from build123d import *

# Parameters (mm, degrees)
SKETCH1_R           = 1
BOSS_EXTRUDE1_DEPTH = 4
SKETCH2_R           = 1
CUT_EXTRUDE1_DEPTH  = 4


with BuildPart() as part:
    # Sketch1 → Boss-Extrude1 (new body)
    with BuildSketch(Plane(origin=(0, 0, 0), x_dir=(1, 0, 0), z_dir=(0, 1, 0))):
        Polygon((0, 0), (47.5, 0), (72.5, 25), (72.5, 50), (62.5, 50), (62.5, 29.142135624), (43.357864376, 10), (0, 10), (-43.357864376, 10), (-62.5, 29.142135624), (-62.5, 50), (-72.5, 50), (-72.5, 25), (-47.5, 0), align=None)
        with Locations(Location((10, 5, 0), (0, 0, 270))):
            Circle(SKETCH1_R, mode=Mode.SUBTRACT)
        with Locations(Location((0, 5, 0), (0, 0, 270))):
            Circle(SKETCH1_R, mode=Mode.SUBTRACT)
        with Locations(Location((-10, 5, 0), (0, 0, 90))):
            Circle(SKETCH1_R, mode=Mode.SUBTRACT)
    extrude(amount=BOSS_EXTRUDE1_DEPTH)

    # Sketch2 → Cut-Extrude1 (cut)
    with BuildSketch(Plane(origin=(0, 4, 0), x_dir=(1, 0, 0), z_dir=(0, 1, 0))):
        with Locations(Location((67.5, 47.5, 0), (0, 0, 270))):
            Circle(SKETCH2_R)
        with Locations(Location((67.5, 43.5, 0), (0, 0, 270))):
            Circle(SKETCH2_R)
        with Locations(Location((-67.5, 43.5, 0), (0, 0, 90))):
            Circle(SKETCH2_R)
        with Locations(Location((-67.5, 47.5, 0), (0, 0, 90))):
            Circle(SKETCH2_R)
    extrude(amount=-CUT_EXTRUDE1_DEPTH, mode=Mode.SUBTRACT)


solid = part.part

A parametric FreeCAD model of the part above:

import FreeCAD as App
import Part
import Sketcher
from FreeCAD import Vector
Q = App.Units.Quantity


def add_polygon(sketch, points):
    """Adds a closed chain of lines whose ends are joined by coincident constraints."""
    first, n = sketch.GeometryCount, len(points)
    for a, b in zip(points, points[1:] + points[:1]):
        sketch.addGeometry(Part.LineSegment(App.Vector(*a, 0), App.Vector(*b, 0)), False)
    for i in range(n):
        sketch.addConstraint(Sketcher.Constraint("Coincident", first + i, 2, first + (i + 1) % n, 1))

doc = App.newDocument("Part")
body = doc.addObject("PartDesign::Body", "Body")

# Sketch on XZ plane
sketch1 = doc.addObject("Sketcher::SketchObject", "Sketch")
body.addObject(sketch1)
sketch1.AttachmentSupport = (doc.XZ_Plane, [""])
sketch1.MapMode = "FlatFace"
add_polygon(sketch1, [(47.5, 0), (72.5, -25), (72.5, -50), (62.5, -50), (62.5, -29.1), (43.4, -10), (-43.4, -10), (-62.5, -29.1), (-62.5, -50), (-72.5, -50), (-72.5, -25), (-47.5, 0)])  # lines 0-11
sketch1.addGeometry(Part.Circle(Vector(-10, -5, 0), Vector(0, 0, 1), 1), False)  # 12
sketch1.addGeometry(Part.Circle(Vector(0, -5, 0), Vector(0, 0, 1), 1), False)  # 13
sketch1.addGeometry(Part.Circle(Vector(10, -5, 0), Vector(0, 0, 1), 1), False)  # 14
sketch1.addConstraint([
    Sketcher.Constraint("Vertical", 1),
    Sketcher.Constraint("Horizontal", 2),
    Sketcher.Constraint("Vertical", 3),
    Sketcher.Constraint("Horizontal", 5),
    Sketcher.Constraint("Vertical", 7),
    Sketcher.Constraint("Horizontal", 8),
    Sketcher.Constraint("Vertical", 9),
    Sketcher.Constraint("Horizontal", 11),
    Sketcher.Constraint("Equal", 12, 13),
    Sketcher.Constraint("Equal", 13, 14),
    Sketcher.Constraint("Symmetric", 10, 2, 11, 2, -1, 1),
    Sketcher.Constraint("Symmetric", 12, 3, 14, 3, -2),
    Sketcher.Constraint("Symmetric", 3, 2, 6, 2, -2),
    Sketcher.Constraint("Symmetric", 1, 2, 8, 2, -2),
    Sketcher.Constraint("PointOnObject", 13, 3, -2),
    Sketcher.Constraint("Parallel", 0, 4),
    Sketcher.Constraint("Perpendicular", 4, 6),
    Sketcher.Constraint("Parallel", 6, 10),
    Sketcher.Constraint("Horizontal", 12, 3, 13, 3),
    Sketcher.Constraint("Horizontal", 0, 2, 9, 2),
    Sketcher.Constraint("Diameter", 12, Q("2 mm")),
    Sketcher.Constraint("DistanceX", 2, 2, 2, 1, Q("10 mm")),
    Sketcher.Constraint("DistanceX", 11, 1, 11, 2, Q("95 mm")),
    Sketcher.Constraint("DistanceY", 1, 2, 1, 1, Q("25 mm")),
    Sketcher.Constraint("DistanceX", 12, 3, -1, 1, Q("10 mm")),
    Sketcher.Constraint("DistanceY", 12, 3, -1, 1, Q("5 mm")),
    Sketcher.Constraint("DistanceY", 0, 2, -1, 1, Q("25 mm")),
    Sketcher.Constraint("DistanceY", 4, 2, -1, 1, Q("10 mm")),
    Sketcher.Constraint("DistanceX", 5, 2, 5, 1, Q("86.715729 mm")),
])
pad1 = doc.addObject("PartDesign::Pad", "Pad")
body.addObject(pad1)
pad1.Profile = sketch1
pad1.Length = 4
pad1.Reversed = True

# Sketch on XZ plane
sketch2 = doc.addObject("Sketcher::SketchObject", "Sketch001")
body.addObject(sketch2)
sketch2.AttachmentSupport = (doc.XZ_Plane, [""])
sketch2.MapMode = "FlatFace"
sketch2.AttachmentOffset = App.Placement(Vector(0, 0, -4), App.Rotation())
sketch2.addGeometry([
    Part.Circle(Vector(67.5, -47.5, 0), Vector(0, 0, 1), 1),
    Part.Circle(Vector(67.5, -43.5, 0), Vector(0, 0, 1), 1),
    Part.Circle(Vector(-67.5, -43.5, 0), Vector(0, 0, 1), 1),
    Part.Circle(Vector(-67.5, -47.5, 0), Vector(0, 0, 1), 1),
], False)
sketch2.addConstraint([
    Sketcher.Constraint("Equal", 0, 1),
    Sketcher.Constraint("Equal", 1, 2),
    Sketcher.Constraint("Equal", 2, 3),
    Sketcher.Constraint("Symmetric", 1, 3, 2, 3, -2),
    Sketcher.Constraint("Symmetric", 0, 3, 3, 3, -2),
    Sketcher.Constraint("Vertical", 0, 3, 1, 3),
    Sketcher.Constraint("Diameter", 0, Q("2 mm")),
    Sketcher.Constraint("DistanceY", 0, 3, 1, 3, Q("4 mm")),
    Sketcher.Constraint("DistanceX", 2, 3, 1, 3, Q("135 mm")),
    Sketcher.Constraint("DistanceY", 0, 3, -1, 1, Q("47.5 mm")),
])
pocket1 = doc.addObject("PartDesign::Pocket", "Pocket")
body.addObject(pocket1)
pocket1.Profile = sketch2
pocket1.Length = 4
pocket1.Reversed = True

doc.recompute()
